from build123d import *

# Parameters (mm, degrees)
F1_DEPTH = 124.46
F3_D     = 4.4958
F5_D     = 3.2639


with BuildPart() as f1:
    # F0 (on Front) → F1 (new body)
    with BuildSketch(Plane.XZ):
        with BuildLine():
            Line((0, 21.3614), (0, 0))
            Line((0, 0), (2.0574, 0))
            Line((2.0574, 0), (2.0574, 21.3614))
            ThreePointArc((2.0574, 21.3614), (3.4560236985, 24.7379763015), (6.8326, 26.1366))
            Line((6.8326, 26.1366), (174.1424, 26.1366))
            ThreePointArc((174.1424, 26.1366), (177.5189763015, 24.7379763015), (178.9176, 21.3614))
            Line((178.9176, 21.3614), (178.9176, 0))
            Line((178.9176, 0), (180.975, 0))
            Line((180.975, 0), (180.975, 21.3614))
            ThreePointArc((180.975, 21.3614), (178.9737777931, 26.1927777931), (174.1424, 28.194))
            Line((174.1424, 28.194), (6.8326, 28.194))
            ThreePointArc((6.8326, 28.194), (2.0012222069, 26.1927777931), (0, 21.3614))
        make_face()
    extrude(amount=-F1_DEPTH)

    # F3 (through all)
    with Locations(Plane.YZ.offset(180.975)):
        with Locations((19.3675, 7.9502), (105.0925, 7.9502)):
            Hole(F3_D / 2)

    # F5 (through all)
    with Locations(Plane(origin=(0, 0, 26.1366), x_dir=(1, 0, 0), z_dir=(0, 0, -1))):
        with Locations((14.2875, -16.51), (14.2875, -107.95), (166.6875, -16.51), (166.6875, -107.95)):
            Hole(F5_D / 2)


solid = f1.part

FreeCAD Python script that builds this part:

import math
import FreeCAD as App
import Part
import Sketcher

V = App.Vector
Q = App.Units.Quantity

doc = App.newDocument("Part")
body = doc.addObject("PartDesign::Body", "Body")

# Sketch on XZ plane
sketch1 = body.newObject("Sketcher::SketchObject", "Sketch")
sketch1.AttachmentSupport = (doc.getObject("XZ_Plane"), [""])
sketch1.MapMode = "FlatFace"
sketch1.addGeometry(Part.LineSegment(V(0, 21.4, 0), V(0, 0, 0)), False)
sketch1.addGeometry(Part.LineSegment(V(0, 0, 0), V(2.1, 0, 0)), False)
sketch1.addGeometry(Part.LineSegment(V(2.1, 0, 0), V(2.1, 21.4, 0)), False)
sketch1.addGeometry(Part.ArcOfCircle(Part.Circle(V(6.8, 21.4, 0), V(0, 0, 1), 4.8), math.radians(90), math.radians(180)), False)
sketch1.addGeometry(Part.LineSegment(V(6.8, 26.1, 0), V(174.1, 26.1, 0)), False)
sketch1.addGeometry(Part.ArcOfCircle(Part.Circle(V(174.1, 21.4, 0), V(0, 0, 1), 4.8), math.radians(0), math.radians(90)), False)
sketch1.addGeometry(Part.LineSegment(V(178.9, 21.4, 0), V(178.9, 0, 0)), False)
sketch1.addGeometry(Part.LineSegment(V(178.9, 0, 0), V(181, 0, 0)), False)
sketch1.addGeometry(Part.LineSegment(V(181, 0, 0), V(181, 21.4, 0)), False)
sketch1.addGeometry(Part.ArcOfCircle(Part.Circle(V(174.1, 21.4, 0), V(0, 0, 1), 6.8), math.radians(0), math.radians(90)), False)
sketch1.addGeometry(Part.LineSegment(V(174.1, 28.2, 0), V(6.8, 28.2, 0)), False)
sketch1.addGeometry(Part.ArcOfCircle(Part.Circle(V(6.8, 21.4, 0), V(0, 0, 1), 6.8), math.radians(90), math.radians(180)), False)
sketch1.addConstraint(Sketcher.Constraint("Coincident", 0, 2, 1, 1))
sketch1.addConstraint(Sketcher.Constraint("Coincident", 1, 2, 2, 1))
sketch1.addConstraint(Sketcher.Constraint("Tangent", 2, 2, 3, 2))
sketch1.addConstraint(Sketcher.Constraint("Tangent", 3, 1, 4, 1))
sketch1.addConstraint(Sketcher.Constraint("Tangent", 4, 2, 5, 2))
sketch1.addConstraint(Sketcher.Constraint("Tangent", 5, 1, 6, 1))
sketch1.addConstraint(Sketcher.Constraint("Coincident", 6, 2, 7, 1))
sketch1.addConstraint(Sketcher.Constraint("Coincident", 7, 2, 8, 1))
sketch1.addConstraint(Sketcher.Constraint("Tangent", 8, 2, 9, 1))
sketch1.addConstraint(Sketcher.Constraint("Tangent", 9, 2, 10, 1))
sketch1.addConstraint(Sketcher.Constraint("Tangent", 10, 2, 11, 1))
sketch1.addConstraint(Sketcher.Constraint("Tangent", 11, 2, 0, 1))
sketch1.addConstraint(Sketcher.Constraint("Vertical", 0))
sketch1.addConstraint(Sketcher.Constraint("Horizontal", 1))
sketch1.addConstraint(Sketcher.Constraint("Vertical", 2))
sketch1.addConstraint(Sketcher.Constraint("Horizontal", 4))
sketch1.addConstraint(Sketcher.Constraint("Vertical", 6))
sketch1.addConstraint(Sketcher.Constraint("Horizontal", 7))
sketch1.addConstraint(Sketcher.Constraint("Vertical", 8))
sketch1.addConstraint(Sketcher.Constraint("Horizontal", 10))
sketch1.addConstraint(Sketcher.Constraint("Coincident", 0, 2, -1, 1))
sketch1.addConstraint(Sketcher.Constraint("Coincident", 9, 3, 5, 3))
sketch1.addConstraint(Sketcher.Constraint("Coincident", 11, 3, 3, 3))
sketch1.addConstraint(Sketcher.Constraint("Equal", 3, 5))
sketch1.addConstraint(Sketcher.Constraint("PointOnObject", 6, 2, -1))
sketch1.addConstraint(Sketcher.Constraint("Radius", 3, Q("0.188 in")))
sketch1.addConstraint(Sketcher.Constraint("Radius", 9, Q("0.269 in")))
sketch1.addConstraint(Sketcher.Constraint("DistanceX", 4, 1, 4, 2, Q("6.587 in")))
sketch1.addConstraint(Sketcher.Constraint("DistanceY", 0, 2, 0, 1, Q("0.841 in")))
pad1 = body.newObject("PartDesign::Pad", "Pad")
pad1.Profile = sketch1
pad1.Length = Q("4.9 in")
pad1.Reversed = True

# Sketch on YZ plane
sketch2 = body.newObject("Sketcher::SketchObject", "Sketch001")
sketch2.AttachmentSupport = (doc.getObject("YZ_Plane"), [""])
sketch2.MapMode = "FlatFace"
sketch2.AttachmentOffset = App.Placement(V(0, 0, 7.125 * 25.4), App.Rotation())
sketch2.addGeometry(Part.Circle(V(19.4, 8, 0), V(0, 0, 1), 2.2), False)
sketch2.addGeometry(Part.Circle(V(105.1, 8, 0), V(0, 0, 1), 2.2), False)
sketch2.addConstraint(Sketcher.Constraint("Equal", 0, 1))
sketch2.addConstraint(Sketcher.Constraint("Horizontal", 0, 3, 1, 3))
sketch2.addConstraint(Sketcher.Constraint("Diameter", 0, Q("0.177 in")))
sketch2.addConstraint(Sketcher.Constraint("DistanceY", -1, 1, 0, 3, Q("0.313 in")))
sketch2.addConstraint(Sketcher.Constraint("DistanceX", 0, 3, 1, 3, Q("3.375 in")))
sketch2.addConstraint(Sketcher.Constraint("DistanceX", -1, 1, 0, 3, Q("0.7625 in")))
doc.recompute()
hole = body.newObject("PartDesign::Hole", "Hole")
hole.Profile = sketch2
hole.ThreadType = "None"
hole.Diameter = Q("0.177 in")
hole.DepthType = "ThroughAll"

# Sketch on XY plane
sketch3 = body.newObject("Sketcher::SketchObject", "Sketch002")
sketch3.AttachmentSupport = (doc.getObject("XY_Plane"), [""])
sketch3.MapMode = "FlatFace"
sketch3.AttachmentOffset = App.Placement(V(0, 0, 1.029 * 25.4), App.Rotation())
sketch3.addGeometry(Part.Circle(V(14.3, 16.5, 0), V(0, 0, 1), 1.6), False)
sketch3.addGeometry(Part.Circle(V(14.3, 108, 0), V(0, 0, 1), 1.6), False)
sketch3.addGeometry(Part.Circle(V(166.7, 16.5, 0), V(0, 0, 1), 1.6), False)
sketch3.addGeometry(Part.Circle(V(166.7, 108, 0), V(0, 0, 1), 1.6), False)
sketch3.addConstraint(Sketcher.Constraint("Equal", 0, 1))
sketch3.addConstraint(Sketcher.Constraint("Equal", 1, 2))
sketch3.addConstraint(Sketcher.Constraint("Equal", 2, 3))
sketch3.addConstraint(Sketcher.Constraint("Horizontal", 0, 3, 2, 3))
sketch3.addConstraint(Sketcher.Constraint("Horizontal", 1, 3, 3, 3))
sketch3.addConstraint(Sketcher.Constraint("Vertical", 0, 3, 1, 3))
sketch3.addConstraint(Sketcher.Constraint("Vertical", 2, 3, 3, 3))
sketch3.addConstraint(Sketcher.Constraint("DistanceX", 0, 3, 2, 3, Q("6 in")))
sketch3.addConstraint(Sketcher.Constraint("Diameter", 0, Q("0.1285 in")))
sketch3.addConstraint(Sketcher.Constraint("DistanceY", 0, 3, 1, 3, Q("3.6 in")))
sketch3.addConstraint(Sketcher.Constraint("DistanceY", -1, 1, 0, 3, Q("0.65 in")))
sketch3.addConstraint(Sketcher.Constraint("DistanceX", -1, 1, 0, 3, Q("0.5625 in")))
doc.recompute()
hole2 = body.newObject("PartDesign::Hole", "Hole001")
hole2.Profile = sketch3
hole2.ThreadType = "None"
hole2.Diameter = Q("0.1285 in")
hole2.DepthType = "ThroughAll"
hole2.Reversed = True

doc.recompute()
